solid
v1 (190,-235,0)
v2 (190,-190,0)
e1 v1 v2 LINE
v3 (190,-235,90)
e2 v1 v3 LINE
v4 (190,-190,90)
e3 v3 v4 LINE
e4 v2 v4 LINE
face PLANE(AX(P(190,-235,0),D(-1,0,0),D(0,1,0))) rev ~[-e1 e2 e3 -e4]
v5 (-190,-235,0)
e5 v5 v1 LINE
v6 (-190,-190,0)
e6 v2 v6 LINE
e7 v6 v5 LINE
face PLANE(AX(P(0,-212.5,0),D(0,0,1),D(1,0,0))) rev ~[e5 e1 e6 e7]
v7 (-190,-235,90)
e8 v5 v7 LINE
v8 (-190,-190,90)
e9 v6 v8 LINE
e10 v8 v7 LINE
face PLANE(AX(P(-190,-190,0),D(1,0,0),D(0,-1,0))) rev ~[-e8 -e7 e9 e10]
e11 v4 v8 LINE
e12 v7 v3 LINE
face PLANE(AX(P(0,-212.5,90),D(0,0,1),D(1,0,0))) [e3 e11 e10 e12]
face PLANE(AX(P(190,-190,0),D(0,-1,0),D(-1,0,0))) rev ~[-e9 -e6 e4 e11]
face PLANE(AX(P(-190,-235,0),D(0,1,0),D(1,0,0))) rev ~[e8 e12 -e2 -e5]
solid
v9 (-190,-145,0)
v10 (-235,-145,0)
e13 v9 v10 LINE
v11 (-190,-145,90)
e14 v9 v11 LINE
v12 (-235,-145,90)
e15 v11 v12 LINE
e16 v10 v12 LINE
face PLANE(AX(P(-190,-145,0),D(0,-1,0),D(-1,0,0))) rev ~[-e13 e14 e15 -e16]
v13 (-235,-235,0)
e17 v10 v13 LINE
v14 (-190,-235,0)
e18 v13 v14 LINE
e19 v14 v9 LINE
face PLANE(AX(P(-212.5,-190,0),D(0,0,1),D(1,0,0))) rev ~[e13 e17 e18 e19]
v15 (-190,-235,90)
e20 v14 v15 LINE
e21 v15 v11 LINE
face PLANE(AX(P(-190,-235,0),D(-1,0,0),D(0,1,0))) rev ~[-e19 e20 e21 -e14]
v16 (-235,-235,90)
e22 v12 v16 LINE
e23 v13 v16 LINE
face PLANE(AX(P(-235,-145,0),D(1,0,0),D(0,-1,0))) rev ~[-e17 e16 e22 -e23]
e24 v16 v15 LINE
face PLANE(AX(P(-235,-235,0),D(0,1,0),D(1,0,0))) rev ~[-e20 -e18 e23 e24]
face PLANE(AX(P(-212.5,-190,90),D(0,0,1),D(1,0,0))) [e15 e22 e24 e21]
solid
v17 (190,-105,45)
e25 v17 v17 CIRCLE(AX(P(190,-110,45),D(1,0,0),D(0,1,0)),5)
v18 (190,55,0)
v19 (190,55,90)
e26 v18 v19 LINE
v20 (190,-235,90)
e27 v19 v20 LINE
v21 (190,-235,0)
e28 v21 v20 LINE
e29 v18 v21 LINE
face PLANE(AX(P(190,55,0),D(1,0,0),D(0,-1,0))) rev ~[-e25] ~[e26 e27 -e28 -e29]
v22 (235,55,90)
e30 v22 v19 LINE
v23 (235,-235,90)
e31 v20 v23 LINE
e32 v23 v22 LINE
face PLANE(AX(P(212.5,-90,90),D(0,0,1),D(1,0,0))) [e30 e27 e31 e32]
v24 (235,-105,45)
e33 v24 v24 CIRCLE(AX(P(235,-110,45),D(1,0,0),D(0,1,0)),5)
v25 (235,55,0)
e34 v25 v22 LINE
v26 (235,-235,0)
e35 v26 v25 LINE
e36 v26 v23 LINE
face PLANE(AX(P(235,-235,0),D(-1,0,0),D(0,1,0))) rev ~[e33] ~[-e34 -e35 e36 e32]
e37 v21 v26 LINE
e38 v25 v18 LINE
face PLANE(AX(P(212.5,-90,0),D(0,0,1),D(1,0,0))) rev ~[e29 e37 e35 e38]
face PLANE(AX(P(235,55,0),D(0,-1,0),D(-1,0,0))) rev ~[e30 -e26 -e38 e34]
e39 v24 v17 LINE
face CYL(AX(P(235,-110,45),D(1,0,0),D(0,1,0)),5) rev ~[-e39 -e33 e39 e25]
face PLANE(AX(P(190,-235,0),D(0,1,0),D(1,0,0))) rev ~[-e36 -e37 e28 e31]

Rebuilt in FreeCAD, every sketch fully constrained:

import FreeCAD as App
import Part
import Sketcher

V = App.Vector

doc = App.newDocument("Part")
params = doc.addObject("Spreadsheet::Sheet", "Params")
for row, (alias, value) in enumerate([
    ("sketch1_width", "45 mm"),
    ("sketch1_height", "290 mm"),
    ("pad1_length", "90 mm"),
    ("sketch2_diameter", "10 mm"),
    ("sketch3_width", "380 mm"),
    ("sketch3_height", "45 mm"),
    ("pad2_length", "90 mm"),
    ("sketch4_width", "45 mm"),
    ("sketch4_height", "90 mm"),
    ("pad3_length", "90 mm"),
], start=1):
    params.set(f"A{row}", alias)
    params.set(f"B{row}", "=" + value)
    params.setAlias(f"B{row}", alias)

body = doc.addObject("PartDesign::Body", "Body")

# Sketch on XY plane
sketch1 = doc.addObject("Sketcher::SketchObject", "Sketch")
body.addObject(sketch1)
sketch1.AttachmentSupport = (doc.XY_Plane, [""])
sketch1.MapMode = "FlatFace"
sketch1.addGeometry(Part.LineSegment(V(235, -235, 0), V(235, 55, 0)), False)
sketch1.addGeometry(Part.LineSegment(V(235, 55, 0), V(190, 55, 0)), False)
sketch1.addGeometry(Part.LineSegment(V(190, 55, 0), V(190, -235, 0)), False)
sketch1.addGeometry(Part.LineSegment(V(190, -235, 0), V(235, -235, 0)), False)
sketch1.addConstraint(Sketcher.Constraint("Coincident", 0, 2, 1, 1))
sketch1.addConstraint(Sketcher.Constraint("Coincident", 1, 2, 2, 1))
sketch1.addConstraint(Sketcher.Constraint("Coincident", 2, 2, 3, 1))
sketch1.addConstraint(Sketcher.Constraint("Coincident", 3, 2, 0, 1))
sketch1.addConstraint(Sketcher.Constraint("Vertical", 0))
sketch1.addConstraint(Sketcher.Constraint("Horizontal", 1))
sketch1.addConstraint(Sketcher.Constraint("Vertical", 2))
sketch1.addConstraint(Sketcher.Constraint("Horizontal", 3))
sketch1.addConstraint(Sketcher.Constraint("DistanceX", 1, 2, 1, 1, 45.0))
sketch1.addConstraint(Sketcher.Constraint("DistanceY", 0, 1, 0, 2, 290.0))
sketch1.addConstraint(Sketcher.Constraint("DistanceX", -1, 1, 0, 2, 235.0))
sketch1.addConstraint(Sketcher.Constraint("DistanceY", -1, 1, 0, 2, 55.0))
sketch1.setExpression("Constraints[8]", "Params.sketch1_width")
sketch1.setExpression("Constraints[9]", "Params.sketch1_height")
pad1 = doc.addObject("PartDesign::Pad", "Pad")
body.addObject(pad1)
pad1.Profile = sketch1
pad1.setExpression("Length", "Params.pad1_length")

# Sketch on YZ plane
sketch2 = doc.addObject("Sketcher::SketchObject", "Sketch001")
body.addObject(sketch2)
sketch2.AttachmentSupport = (doc.YZ_Plane, [""])
sketch2.MapMode = "FlatFace"
sketch2.AttachmentOffset = App.Placement(V(0, 0, 235), App.Rotation())
sketch2.addGeometry(Part.Circle(V(-110, 45, 0), V(0, 0, 1), 5), False)
sketch2.addConstraint(Sketcher.Constraint("Diameter", 0, 10.0))
sketch2.addConstraint(Sketcher.Constraint("DistanceX", 0, 3, -1, 1, 110.0))
sketch2.addConstraint(Sketcher.Constraint("DistanceY", -1, 1, 0, 3, 45.0))
sketch2.setExpression("Constraints[0]", "Params.sketch2_diameter")
pocket1 = doc.addObject("PartDesign::Pocket", "Pocket")
body.addObject(pocket1)
pocket1.Profile = sketch2
pocket1.Type = "ThroughAll"
body2 = doc.addObject("PartDesign::Body", "Body001")

# Sketch on XY plane
sketch3 = doc.addObject("Sketcher::SketchObject", "Sketch002")
body2.addObject(sketch3)
sketch3.AttachmentSupport = (doc.getObject("XY_Plane001"), [""])
sketch3.MapMode = "FlatFace"
sketch3.addGeometry(Part.LineSegment(V(190, -190, 0), V(-190, -190, 0)), False)
sketch3.addGeometry(Part.LineSegment(V(-190, -190, 0), V(-190, -235, 0)), False)
sketch3.addGeometry(Part.LineSegment(V(-190, -235, 0), V(190, -235, 0)), False)
sketch3.addGeometry(Part.LineSegment(V(190, -235, 0), V(190, -190, 0)), False)
sketch3.addConstraint(Sketcher.Constraint("Coincident", 0, 2, 1, 1))
sketch3.addConstraint(Sketcher.Constraint("Coincident", 1, 2, 2, 1))
sketch3.addConstraint(Sketcher.Constraint("Coincident", 2, 2, 3, 1))
sketch3.addConstraint(Sketcher.Constraint("Coincident", 3, 2, 0, 1))
sketch3.addConstraint(Sketcher.Constraint("Horizontal", 0))
sketch3.addConstraint(Sketcher.Constraint("Vertical", 1))
sketch3.addConstraint(Sketcher.Constraint("Horizontal", 2))
sketch3.addConstraint(Sketcher.Constraint("Vertical", 3))
sketch3.addConstraint(Sketcher.Constraint("DistanceX", 0, 2, 0, 1, 380.0))
sketch3.addConstraint(Sketcher.Constraint("DistanceY", 1, 2, 1, 1, 45.0))
sketch3.addConstraint(Sketcher.Constraint("DistanceX", 0, 2, -1, 1, 190.0))
sketch3.addConstraint(Sketcher.Constraint("DistanceY", 0, 2, -1, 1, 190.0))
sketch3.setExpression("Constraints[8]", "Params.sketch3_width")
sketch3.setExpression("Constraints[9]", "Params.sketch3_height")
pad2 = doc.addObject("PartDesign::Pad", "Pad001")
body2.addObject(pad2)
pad2.Profile = sketch3
pad2.setExpression("Length", "Params.pad2_length")
body3 = doc.addObject("PartDesign::Body", "Body002")

# Sketch on XY plane
sketch4 = doc.addObject("Sketcher::SketchObject", "Sketch003")
body3.addObject(sketch4)
sketch4.AttachmentSupport = (doc.getObject("XY_Plane002"), [""])
sketch4.MapMode = "FlatFace"
sketch4.addGeometry(Part.LineSegment(V(-190, -145, 0), V(-235, -145, 0)), False)
sketch4.addGeometry(Part.LineSegment(V(-235, -145, 0), V(-235, -235, 0)), False)
sketch4.addGeometry(Part.LineSegment(V(-235, -235, 0), V(-190, -235, 0)), False)
sketch4.addGeometry(Part.LineSegment(V(-190, -235, 0), V(-190, -145, 0)), False)
sketch4.addConstraint(Sketcher.Constraint("Coincident", 0, 2, 1, 1))
sketch4.addConstraint(Sketcher.Constraint("Coincident", 1, 2, 2, 1))
sketch4.addConstraint(Sketcher.Constraint("Coincident", 2, 2, 3, 1))
sketch4.addConstraint(Sketcher.Constraint("Coincident", 3, 2, 0, 1))
sketch4.addConstraint(Sketcher.Constraint("Horizontal", 0))
sketch4.addConstraint(Sketcher.Constraint("Vertical", 1))
sketch4.addConstraint(Sketcher.Constraint("Horizontal", 2))
sketch4.addConstraint(Sketcher.Constraint("Vertical", 3))
sketch4.addConstraint(Sketcher.Constraint("DistanceX", 0, 2, 0, 1, 45.0))
sketch4.addConstraint(Sketcher.Constraint("DistanceY", 1, 2, 1, 1, 90.0))
sketch4.addConstraint(Sketcher.Constraint("DistanceX", 0, 2, -1, 1, 235.0))
sketch4.addConstraint(Sketcher.Constraint("DistanceY", 0, 2, -1, 1, 145.0))
sketch4.setExpression("Constraints[8]", "Params.sketch4_width")
sketch4.setExpression("Constraints[9]", "Params.sketch4_height")
pad3 = doc.addObject("PartDesign::Pad", "Pad002")
body3.addObject(pad3)
pad3.Profile = sketch4
pad3.setExpression("Length", "Params.pad3_length")

doc.recompute()
